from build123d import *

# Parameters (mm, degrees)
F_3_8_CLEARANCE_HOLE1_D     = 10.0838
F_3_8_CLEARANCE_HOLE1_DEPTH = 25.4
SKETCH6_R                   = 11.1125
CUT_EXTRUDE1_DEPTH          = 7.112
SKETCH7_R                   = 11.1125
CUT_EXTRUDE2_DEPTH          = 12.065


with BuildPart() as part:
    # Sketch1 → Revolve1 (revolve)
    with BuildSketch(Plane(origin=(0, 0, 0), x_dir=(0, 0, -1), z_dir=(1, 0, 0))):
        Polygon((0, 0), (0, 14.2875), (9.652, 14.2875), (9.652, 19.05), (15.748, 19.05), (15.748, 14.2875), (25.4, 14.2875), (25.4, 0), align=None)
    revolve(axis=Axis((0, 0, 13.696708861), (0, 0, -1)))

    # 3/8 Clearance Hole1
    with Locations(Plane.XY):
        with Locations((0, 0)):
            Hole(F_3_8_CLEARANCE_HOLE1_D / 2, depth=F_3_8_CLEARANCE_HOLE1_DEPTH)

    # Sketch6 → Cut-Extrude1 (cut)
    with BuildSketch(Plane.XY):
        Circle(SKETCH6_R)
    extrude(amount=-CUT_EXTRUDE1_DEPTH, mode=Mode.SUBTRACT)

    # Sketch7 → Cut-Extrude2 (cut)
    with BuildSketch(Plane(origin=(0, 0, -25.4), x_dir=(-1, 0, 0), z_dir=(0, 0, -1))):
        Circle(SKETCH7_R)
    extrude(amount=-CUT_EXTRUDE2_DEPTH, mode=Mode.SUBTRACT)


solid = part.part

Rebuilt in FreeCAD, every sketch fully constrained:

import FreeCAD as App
import Part
import Sketcher

V = App.Vector
Q = App.Units.Quantity


def add_polygon(sketch, points):
    """Adds a closed chain of lines whose ends are joined by coincident constraints."""
    first, n = sketch.GeometryCount, len(points)
    for a, b in zip(points, points[1:] + points[:1]):
        sketch.addGeometry(Part.LineSegment(App.Vector(*a, 0), App.Vector(*b, 0)), False)
    for i in range(n):
        sketch.addConstraint(Sketcher.Constraint("Coincident", first + i, 2, first + (i + 1) % n, 1))

doc = App.newDocument("Part")
body = doc.addObject("PartDesign::Body", "Body")

sketch1 = body.newObject("Sketcher::SketchObject", "Sketch")
sketch1.AttachmentSupport = (doc.getObject("YZ_Plane"), [""])
sketch1.MapMode = "FlatFace"
add_polygon(sketch1, [(14.3, 0), (0, 0), (0, -25.4), (14.3, -25.4), (14.3, -15.7), (19.1, -15.7), (19.1, -9.7), (14.3, -9.7)])
sketch1.addConstraint([
    Sketcher.Constraint("Horizontal", 0),
    Sketcher.Constraint("Vertical", 1),
    Sketcher.Constraint("Horizontal", 2),
    Sketcher.Constraint("Vertical", 3),
    Sketcher.Constraint("Horizontal", 4),
    Sketcher.Constraint("Vertical", 5),
    Sketcher.Constraint("Horizontal", 6),
    Sketcher.Constraint("Vertical", 7),
    Sketcher.Constraint("Coincident", 0, 2, -1, 1),
    Sketcher.Constraint("Vertical", 3, 2, 6, 2),
    Sketcher.Constraint("Equal", 3, 7),
    Sketcher.Constraint("DistanceY", 1, 2, 1, 1, Q("1 in")),
    Sketcher.Constraint("DistanceY", 3, 1, 3, 2, Q("0.38 in")),
    Sketcher.Constraint("DistanceX", 0, 2, 0, 1, Q("0.5625 in")),
    Sketcher.Constraint("DistanceX", 4, 1, 4, 2, Q("0.1875 in")),
])
revolution = body.newObject("PartDesign::Revolution", "Revolution")
revolution.Profile = sketch1
revolution.ReferenceAxis = (sketch1, ["V_Axis"])
revolution.Angle = 360

sketch2 = body.newObject("Sketcher::SketchObject", "Sketch001")
sketch2.AttachmentSupport = (doc.getObject("XY_Plane"), [""])
sketch2.MapMode = "FlatFace"
sketch2.addGeometry(Part.Circle(V(0, 0, 0), V(0, 0, 1), 5), False)
sketch2.addConstraint([
    Sketcher.Constraint("Coincident", 0, 3, -1, 1),
    Sketcher.Constraint("Diameter", 0, Q("0.397 in")),
])
doc.recompute()
hole = body.newObject("PartDesign::Hole", "Hole")
hole.Profile = sketch2
hole.ThreadType = "None"
hole.Diameter = Q("0.397 in")
hole.DepthType = "Dimension"
hole.Depth = Q("1 in")
hole.DrillPoint = "Flat"

sketch3 = body.newObject("Sketcher::SketchObject", "Sketch002")
sketch3.AttachmentSupport = (doc.getObject("XY_Plane"), [""])
sketch3.MapMode = "FlatFace"
sketch3.addGeometry(Part.Circle(V(0, 0, 0), V(0, 0, 1), 11), False)
sketch3.addConstraint([
    Sketcher.Constraint("Coincident", 0, 3, -1, 1),
    Sketcher.Constraint("Diameter", 0, Q("0.875 in")),
])
pocket1 = body.newObject("PartDesign::Pocket", "Pocket")
pocket1.Profile = sketch3
pocket1.Length = Q("0.28 in")

sketch4 = body.newObject("Sketcher::SketchObject", "Sketch003")
sketch4.AttachmentSupport = (doc.getObject("XY_Plane"), [""])
sketch4.MapMode = "FlatFace"
sketch4.AttachmentOffset = App.Placement(V(0, 0, -1 * 25.4), App.Rotation())
sketch4.addGeometry(Part.Circle(V(0, 0, 0), V(0, 0, 1), 11), False)
sketch4.addConstraint([
    Sketcher.Constraint("Coincident", 0, 3, -1, 1),
    Sketcher.Constraint("Diameter", 0, Q("0.875 in")),
])
pocket2 = body.newObject("PartDesign::Pocket", "Pocket001")
pocket2.Profile = sketch4
pocket2.Length = Q("0.475 in")
pocket2.Reversed = True

doc.recompute()
